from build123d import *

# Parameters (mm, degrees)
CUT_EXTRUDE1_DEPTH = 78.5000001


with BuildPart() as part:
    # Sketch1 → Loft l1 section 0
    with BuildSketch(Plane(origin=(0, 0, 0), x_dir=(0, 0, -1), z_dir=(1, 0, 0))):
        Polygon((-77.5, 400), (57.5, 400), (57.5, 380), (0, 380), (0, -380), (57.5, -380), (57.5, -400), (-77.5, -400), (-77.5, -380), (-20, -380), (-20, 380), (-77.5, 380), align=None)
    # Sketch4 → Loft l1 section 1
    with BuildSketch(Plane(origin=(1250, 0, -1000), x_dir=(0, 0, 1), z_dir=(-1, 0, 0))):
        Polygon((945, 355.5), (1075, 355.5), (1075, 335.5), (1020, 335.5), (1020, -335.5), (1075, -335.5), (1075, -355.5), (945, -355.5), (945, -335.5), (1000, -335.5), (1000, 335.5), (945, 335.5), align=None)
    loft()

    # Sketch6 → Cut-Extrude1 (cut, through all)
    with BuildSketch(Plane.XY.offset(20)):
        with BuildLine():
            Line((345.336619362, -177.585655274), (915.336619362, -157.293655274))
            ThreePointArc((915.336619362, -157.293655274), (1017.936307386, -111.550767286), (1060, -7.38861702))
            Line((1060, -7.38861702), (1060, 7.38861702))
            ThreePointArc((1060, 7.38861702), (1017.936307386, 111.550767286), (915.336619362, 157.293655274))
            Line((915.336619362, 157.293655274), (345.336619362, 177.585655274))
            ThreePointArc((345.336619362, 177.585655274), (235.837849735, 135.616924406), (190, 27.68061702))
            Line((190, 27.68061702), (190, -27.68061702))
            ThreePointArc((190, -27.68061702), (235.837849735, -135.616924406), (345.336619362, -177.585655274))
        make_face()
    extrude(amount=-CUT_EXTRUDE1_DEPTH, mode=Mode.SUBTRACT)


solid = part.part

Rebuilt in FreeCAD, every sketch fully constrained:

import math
import FreeCAD as App
import Part
import Sketcher

V = App.Vector
Q = App.Units.Quantity

doc = App.newDocument("Part")
body = doc.addObject("PartDesign::Body", "Body")

# Sketch on YZ plane
sketch1 = body.newObject("Sketcher::SketchObject", "Sketch")
sketch1.AttachmentSupport = (doc.getObject("YZ_Plane"), [""])
sketch1.MapMode = "FlatFace"
sketch1.addGeometry(Part.LineSegment(V(400, -58, 0), V(400, 78, 0)), False)
sketch1.addGeometry(Part.LineSegment(V(400, 78, 0), V(380, 78, 0)), False)
sketch1.addGeometry(Part.LineSegment(V(380, 78, 0), V(380, 20, 0)), False)
sketch1.addGeometry(Part.LineSegment(V(380, 20, 0), V(-380, 20, 0)), False)
sketch1.addGeometry(Part.LineSegment(V(-380, 20, 0), V(-380, 78, 0)), False)
sketch1.addGeometry(Part.LineSegment(V(-380, 78, 0), V(-400, 78, 0)), False)
sketch1.addGeometry(Part.LineSegment(V(-400, 78, 0), V(-400, -58, 0)), False)
sketch1.addGeometry(Part.LineSegment(V(-400, -58, 0), V(-380, -58, 0)), False)
sketch1.addGeometry(Part.LineSegment(V(-380, -58, 0), V(-380, 0, 0)), False)
sketch1.addGeometry(Part.LineSegment(V(-380, 0, 0), V(380, 0, 0)), False)
sketch1.addGeometry(Part.LineSegment(V(380, 0, 0), V(380, -58, 0)), False)
sketch1.addGeometry(Part.LineSegment(V(380, -58, 0), V(400, -58, 0)), False)
sketch1.addConstraint(Sketcher.Constraint("Coincident", 0, 2, 1, 1))
sketch1.addConstraint(Sketcher.Constraint("Coincident", 1, 2, 2, 1))
sketch1.addConstraint(Sketcher.Constraint("Coincident", 2, 2, 3, 1))
sketch1.addConstraint(Sketcher.Constraint("Coincident", 3, 2, 4, 1))
sketch1.addConstraint(Sketcher.Constraint("Coincident", 4, 2, 5, 1))
sketch1.addConstraint(Sketcher.Constraint("Coincident", 5, 2, 6, 1))
sketch1.addConstraint(Sketcher.Constraint("Coincident", 6, 2, 7, 1))
sketch1.addConstraint(Sketcher.Constraint("Coincident", 7, 2, 8, 1))
sketch1.addConstraint(Sketcher.Constraint("Coincident", 8, 2, 9, 1))
sketch1.addConstraint(Sketcher.Constraint("Coincident", 9, 2, 10, 1))
sketch1.addConstraint(Sketcher.Constraint("Coincident", 10, 2, 11, 1))
sketch1.addConstraint(Sketcher.Constraint("Coincident", 11, 2, 0, 1))
sketch1.addConstraint(Sketcher.Constraint("Vertical", 0))
sketch1.addConstraint(Sketcher.Constraint("Horizontal", 1))
sketch1.addConstraint(Sketcher.Constraint("Vertical", 2))
sketch1.addConstraint(Sketcher.Constraint("Horizontal", 3))
sketch1.addConstraint(Sketcher.Constraint("Vertical", 4))
sketch1.addConstraint(Sketcher.Constraint("Horizontal", 5))
sketch1.addConstraint(Sketcher.Constraint("Vertical", 6))
sketch1.addConstraint(Sketcher.Constraint("Horizontal", 7))
sketch1.addConstraint(Sketcher.Constraint("Vertical", 8))
sketch1.addConstraint(Sketcher.Constraint("Horizontal", 9))
sketch1.addConstraint(Sketcher.Constraint("Vertical", 10))
sketch1.addConstraint(Sketcher.Constraint("Horizontal", 11))
sketch1.addConstraint(Sketcher.Constraint("Symmetric", 8, 2, 9, 2, -1, 1))
sketch1.addConstraint(Sketcher.Constraint("Symmetric", 1, 2, 4, 2, -2))
sketch1.addConstraint(Sketcher.Constraint("Symmetric", 6, 2, 11, 2, -2))
sketch1.addConstraint(Sketcher.Constraint("Vertical", 4, 2, 7, 2))
sketch1.addConstraint(Sketcher.Constraint("Equal", 4, 8))
sketch1.addConstraint(Sketcher.Constraint("DistanceX", 1, 2, 1, 1, Q("20 mm")))
sketch1.addConstraint(Sketcher.Constraint("DistanceX", 3, 2, 3, 1, Q("760 mm")))
sketch1.addConstraint(Sketcher.Constraint("DistanceY", 0, 1, 0, 2, Q("135 mm")))
sketch1.addConstraint(Sketcher.Constraint("DistanceY", 2, 2, 2, 1, Q("57.5 mm")))

# Sketch on YZ plane
sketch2 = body.newObject("Sketcher::SketchObject", "Sketch001")
sketch2.AttachmentSupport = (doc.getObject("YZ_Plane"), [""])
sketch2.MapMode = "FlatFace"
sketch2.AttachmentOffset = App.Placement(V(0, 0, 1250), App.Rotation())
sketch2.addGeometry(Part.LineSegment(V(356, 75, 0), V(356, -55, 0)), False)
sketch2.addGeometry(Part.LineSegment(V(356, -55, 0), V(336, -55, 0)), False)
sketch2.addGeometry(Part.LineSegment(V(336, -55, 0), V(336, 0, 0)), False)
sketch2.addGeometry(Part.LineSegment(V(336, 0, 0), V(-336, 0, 0)), False)
sketch2.addGeometry(Part.LineSegment(V(-336, 0, 0), V(-336, -55, 0)), False)
sketch2.addGeometry(Part.LineSegment(V(-336, -55, 0), V(-356, -55, 0)), False)
sketch2.addGeometry(Part.LineSegment(V(-356, -55, 0), V(-356, 75, 0)), False)
sketch2.addGeometry(Part.LineSegment(V(-356, 75, 0), V(-336, 75, 0)), False)
sketch2.addGeometry(Part.LineSegment(V(-336, 75, 0), V(-336, 20, 0)), False)
sketch2.addGeometry(Part.LineSegment(V(-336, 20, 0), V(336, 20, 0)), False)
sketch2.addGeometry(Part.LineSegment(V(336, 20, 0), V(336, 75, 0)), False)
sketch2.addGeometry(Part.LineSegment(V(336, 75, 0), V(356, 75, 0)), False)
sketch2.addConstraint(Sketcher.Constraint("Coincident", 0, 2, 1, 1))
sketch2.addConstraint(Sketcher.Constraint("Coincident", 1, 2, 2, 1))
sketch2.addConstraint(Sketcher.Constraint("Coincident", 2, 2, 3, 1))
sketch2.addConstraint(Sketcher.Constraint("Coincident", 3, 2, 4, 1))
sketch2.addConstraint(Sketcher.Constraint("Coincident", 4, 2, 5, 1))
sketch2.addConstraint(Sketcher.Constraint("Coincident", 5, 2, 6, 1))
sketch2.addConstraint(Sketcher.Constraint("Coincident", 6, 2, 7, 1))
sketch2.addConstraint(Sketcher.Constraint("Coincident", 7, 2, 8, 1))
sketch2.addConstraint(Sketcher.Constraint("Coincident", 8, 2, 9, 1))
sketch2.addConstraint(Sketcher.Constraint("Coincident", 9, 2, 10, 1))
sketch2.addConstraint(Sketcher.Constraint("Coincident", 10, 2, 11, 1))
sketch2.addConstraint(Sketcher.Constraint("Coincident", 11, 2, 0, 1))
sketch2.addConstraint(Sketcher.Constraint("Vertical", 0))
sketch2.addConstraint(Sketcher.Constraint("Horizontal", 1))
sketch2.addConstraint(Sketcher.Constraint("Vertical", 2))
sketch2.addConstraint(Sketcher.Constraint("Horizontal", 3))
sketch2.addConstraint(Sketcher.Constraint("Vertical", 4))
sketch2.addConstraint(Sketcher.Constraint("Horizontal", 5))
sketch2.addConstraint(Sketcher.Constraint("Vertical", 6))
sketch2.addConstraint(Sketcher.Constraint("Horizontal", 7))
sketch2.addConstraint(Sketcher.Constraint("Vertical", 8))
sketch2.addConstraint(Sketcher.Constraint("Horizontal", 9))
sketch2.addConstraint(Sketcher.Constraint("Vertical", 10))
sketch2.addConstraint(Sketcher.Constraint("Horizontal", 11))
sketch2.addConstraint(Sketcher.Constraint("Symmetric", 2, 2, 3, 2, -1, 1))
sketch2.addConstraint(Sketcher.Constraint("Symmetric", 0, 2, 5, 2, -2))
sketch2.addConstraint(Sketcher.Constraint("Symmetric", 7, 2, 10, 2, -2))
sketch2.addConstraint(Sketcher.Constraint("Vertical", 4, 2, 7, 2))
sketch2.addConstraint(Sketcher.Constraint("Equal", 4, 8))
sketch2.addConstraint(Sketcher.Constraint("DistanceX", 1, 2, 1, 1, Q("20 mm")))
sketch2.addConstraint(Sketcher.Constraint("DistanceX", 3, 2, 3, 1, Q("671 mm")))
sketch2.addConstraint(Sketcher.Constraint("DistanceY", 0, 2, 0, 1, Q("130 mm")))
sketch2.addConstraint(Sketcher.Constraint("DistanceY", 2, 1, 2, 2, Q("55 mm")))

additiveloft = body.newObject("PartDesign::AdditiveLoft", "AdditiveLoft")
additiveloft.Profile = sketch1
additiveloft.Sections = [sketch2]

# Sketch on XY plane
sketch3 = body.newObject("Sketcher::SketchObject", "Sketch002")
sketch3.AttachmentSupport = (doc.getObject("XY_Plane"), [""])
sketch3.MapMode = "FlatFace"
sketch3.AttachmentOffset = App.Placement(V(0, 0, 20), App.Rotation())
sketch3.addGeometry(Part.LineSegment(V(345, -178, 0), V(915, -157, 0)), False)
sketch3.addGeometry(Part.ArcOfCircle(Part.Circle(V(910, -7, 0), V(0, 0, 1), 150), math.radians(-88), math.radians(0)), False)
sketch3.addGeometry(Part.LineSegment(V(1060, -7, 0), V(1060, 7, 0)), False)
sketch3.addGeometry(Part.ArcOfCircle(Part.Circle(V(910, 7, 0), V(0, 0, 1), 150), math.radians(0), math.radians(88)), False)
sketch3.addGeometry(Part.LineSegment(V(915, 157, 0), V(345, 178, 0)), False)
sketch3.addGeometry(Part.ArcOfCircle(Part.Circle(V(340, 28, 0), V(0, 0, 1), 150), math.radians(88), math.radians(180)), False)
sketch3.addGeometry(Part.LineSegment(V(190, 28, 0), V(190, -28, 0)), False)
sketch3.addGeometry(Part.ArcOfCircle(Part.Circle(V(340, -28, 0), V(0, 0, 1), 150), math.radians(-180), math.radians(-88)), False)
sketch3.addConstraint(Sketcher.Constraint("Tangent", 0, 2, 1, 1))
sketch3.addConstraint(Sketcher.Constraint("Tangent", 1, 2, 2, 1))
sketch3.addConstraint(Sketcher.Constraint("Tangent", 2, 2, 3, 1))
sketch3.addConstraint(Sketcher.Constraint("Tangent", 3, 2, 4, 1))
sketch3.addConstraint(Sketcher.Constraint("Tangent", 4, 2, 5, 1))
sketch3.addConstraint(Sketcher.Constraint("Tangent", 5, 2, 6, 1))
sketch3.addConstraint(Sketcher.Constraint("Tangent", 6, 2, 7, 1))
sketch3.addConstraint(Sketcher.Constraint("Tangent", 7, 2, 0, 1))
sketch3.addConstraint(Sketcher.Constraint("Vertical", 2))
sketch3.addConstraint(Sketcher.Constraint("Vertical", 6))
sketch3.addConstraint(Sketcher.Constraint("Equal", 1, 3))
sketch3.addConstraint(Sketcher.Constraint("Equal", 3, 5))
sketch3.addConstraint(Sketcher.Constraint("Equal", 5, 7))
sketch3.addConstraint(Sketcher.Constraint("Equal", 0, 4))
sketch3.addConstraint(Sketcher.Constraint("Radius", 1, Q("150 mm")))
sketch3.addConstraint(Sketcher.Constraint("DistanceX", -1, 1, 1, 3, Q("910 mm")))
sketch3.addConstraint(Sketcher.Constraint("DistanceX", -1, 1, 5, 3, Q("340 mm")))
sketch3.addConstraint(Sketcher.Constraint("DistanceY", 3, 3, 5, 3, Q("20.292 mm")))
sketch3.addConstraint(Sketcher.Constraint("DistanceY", 2, 1, 2, 2, Q("14.777234 mm")))
sketch3.addConstraint(Sketcher.Constraint("DistanceY", 1, 3, -1, 1, Q("7.388617 mm")))
pocket1 = body.newObject("PartDesign::Pocket", "Pocket")
pocket1.Profile = sketch3
pocket1.Type = "ThroughAll"

doc.recompute()
